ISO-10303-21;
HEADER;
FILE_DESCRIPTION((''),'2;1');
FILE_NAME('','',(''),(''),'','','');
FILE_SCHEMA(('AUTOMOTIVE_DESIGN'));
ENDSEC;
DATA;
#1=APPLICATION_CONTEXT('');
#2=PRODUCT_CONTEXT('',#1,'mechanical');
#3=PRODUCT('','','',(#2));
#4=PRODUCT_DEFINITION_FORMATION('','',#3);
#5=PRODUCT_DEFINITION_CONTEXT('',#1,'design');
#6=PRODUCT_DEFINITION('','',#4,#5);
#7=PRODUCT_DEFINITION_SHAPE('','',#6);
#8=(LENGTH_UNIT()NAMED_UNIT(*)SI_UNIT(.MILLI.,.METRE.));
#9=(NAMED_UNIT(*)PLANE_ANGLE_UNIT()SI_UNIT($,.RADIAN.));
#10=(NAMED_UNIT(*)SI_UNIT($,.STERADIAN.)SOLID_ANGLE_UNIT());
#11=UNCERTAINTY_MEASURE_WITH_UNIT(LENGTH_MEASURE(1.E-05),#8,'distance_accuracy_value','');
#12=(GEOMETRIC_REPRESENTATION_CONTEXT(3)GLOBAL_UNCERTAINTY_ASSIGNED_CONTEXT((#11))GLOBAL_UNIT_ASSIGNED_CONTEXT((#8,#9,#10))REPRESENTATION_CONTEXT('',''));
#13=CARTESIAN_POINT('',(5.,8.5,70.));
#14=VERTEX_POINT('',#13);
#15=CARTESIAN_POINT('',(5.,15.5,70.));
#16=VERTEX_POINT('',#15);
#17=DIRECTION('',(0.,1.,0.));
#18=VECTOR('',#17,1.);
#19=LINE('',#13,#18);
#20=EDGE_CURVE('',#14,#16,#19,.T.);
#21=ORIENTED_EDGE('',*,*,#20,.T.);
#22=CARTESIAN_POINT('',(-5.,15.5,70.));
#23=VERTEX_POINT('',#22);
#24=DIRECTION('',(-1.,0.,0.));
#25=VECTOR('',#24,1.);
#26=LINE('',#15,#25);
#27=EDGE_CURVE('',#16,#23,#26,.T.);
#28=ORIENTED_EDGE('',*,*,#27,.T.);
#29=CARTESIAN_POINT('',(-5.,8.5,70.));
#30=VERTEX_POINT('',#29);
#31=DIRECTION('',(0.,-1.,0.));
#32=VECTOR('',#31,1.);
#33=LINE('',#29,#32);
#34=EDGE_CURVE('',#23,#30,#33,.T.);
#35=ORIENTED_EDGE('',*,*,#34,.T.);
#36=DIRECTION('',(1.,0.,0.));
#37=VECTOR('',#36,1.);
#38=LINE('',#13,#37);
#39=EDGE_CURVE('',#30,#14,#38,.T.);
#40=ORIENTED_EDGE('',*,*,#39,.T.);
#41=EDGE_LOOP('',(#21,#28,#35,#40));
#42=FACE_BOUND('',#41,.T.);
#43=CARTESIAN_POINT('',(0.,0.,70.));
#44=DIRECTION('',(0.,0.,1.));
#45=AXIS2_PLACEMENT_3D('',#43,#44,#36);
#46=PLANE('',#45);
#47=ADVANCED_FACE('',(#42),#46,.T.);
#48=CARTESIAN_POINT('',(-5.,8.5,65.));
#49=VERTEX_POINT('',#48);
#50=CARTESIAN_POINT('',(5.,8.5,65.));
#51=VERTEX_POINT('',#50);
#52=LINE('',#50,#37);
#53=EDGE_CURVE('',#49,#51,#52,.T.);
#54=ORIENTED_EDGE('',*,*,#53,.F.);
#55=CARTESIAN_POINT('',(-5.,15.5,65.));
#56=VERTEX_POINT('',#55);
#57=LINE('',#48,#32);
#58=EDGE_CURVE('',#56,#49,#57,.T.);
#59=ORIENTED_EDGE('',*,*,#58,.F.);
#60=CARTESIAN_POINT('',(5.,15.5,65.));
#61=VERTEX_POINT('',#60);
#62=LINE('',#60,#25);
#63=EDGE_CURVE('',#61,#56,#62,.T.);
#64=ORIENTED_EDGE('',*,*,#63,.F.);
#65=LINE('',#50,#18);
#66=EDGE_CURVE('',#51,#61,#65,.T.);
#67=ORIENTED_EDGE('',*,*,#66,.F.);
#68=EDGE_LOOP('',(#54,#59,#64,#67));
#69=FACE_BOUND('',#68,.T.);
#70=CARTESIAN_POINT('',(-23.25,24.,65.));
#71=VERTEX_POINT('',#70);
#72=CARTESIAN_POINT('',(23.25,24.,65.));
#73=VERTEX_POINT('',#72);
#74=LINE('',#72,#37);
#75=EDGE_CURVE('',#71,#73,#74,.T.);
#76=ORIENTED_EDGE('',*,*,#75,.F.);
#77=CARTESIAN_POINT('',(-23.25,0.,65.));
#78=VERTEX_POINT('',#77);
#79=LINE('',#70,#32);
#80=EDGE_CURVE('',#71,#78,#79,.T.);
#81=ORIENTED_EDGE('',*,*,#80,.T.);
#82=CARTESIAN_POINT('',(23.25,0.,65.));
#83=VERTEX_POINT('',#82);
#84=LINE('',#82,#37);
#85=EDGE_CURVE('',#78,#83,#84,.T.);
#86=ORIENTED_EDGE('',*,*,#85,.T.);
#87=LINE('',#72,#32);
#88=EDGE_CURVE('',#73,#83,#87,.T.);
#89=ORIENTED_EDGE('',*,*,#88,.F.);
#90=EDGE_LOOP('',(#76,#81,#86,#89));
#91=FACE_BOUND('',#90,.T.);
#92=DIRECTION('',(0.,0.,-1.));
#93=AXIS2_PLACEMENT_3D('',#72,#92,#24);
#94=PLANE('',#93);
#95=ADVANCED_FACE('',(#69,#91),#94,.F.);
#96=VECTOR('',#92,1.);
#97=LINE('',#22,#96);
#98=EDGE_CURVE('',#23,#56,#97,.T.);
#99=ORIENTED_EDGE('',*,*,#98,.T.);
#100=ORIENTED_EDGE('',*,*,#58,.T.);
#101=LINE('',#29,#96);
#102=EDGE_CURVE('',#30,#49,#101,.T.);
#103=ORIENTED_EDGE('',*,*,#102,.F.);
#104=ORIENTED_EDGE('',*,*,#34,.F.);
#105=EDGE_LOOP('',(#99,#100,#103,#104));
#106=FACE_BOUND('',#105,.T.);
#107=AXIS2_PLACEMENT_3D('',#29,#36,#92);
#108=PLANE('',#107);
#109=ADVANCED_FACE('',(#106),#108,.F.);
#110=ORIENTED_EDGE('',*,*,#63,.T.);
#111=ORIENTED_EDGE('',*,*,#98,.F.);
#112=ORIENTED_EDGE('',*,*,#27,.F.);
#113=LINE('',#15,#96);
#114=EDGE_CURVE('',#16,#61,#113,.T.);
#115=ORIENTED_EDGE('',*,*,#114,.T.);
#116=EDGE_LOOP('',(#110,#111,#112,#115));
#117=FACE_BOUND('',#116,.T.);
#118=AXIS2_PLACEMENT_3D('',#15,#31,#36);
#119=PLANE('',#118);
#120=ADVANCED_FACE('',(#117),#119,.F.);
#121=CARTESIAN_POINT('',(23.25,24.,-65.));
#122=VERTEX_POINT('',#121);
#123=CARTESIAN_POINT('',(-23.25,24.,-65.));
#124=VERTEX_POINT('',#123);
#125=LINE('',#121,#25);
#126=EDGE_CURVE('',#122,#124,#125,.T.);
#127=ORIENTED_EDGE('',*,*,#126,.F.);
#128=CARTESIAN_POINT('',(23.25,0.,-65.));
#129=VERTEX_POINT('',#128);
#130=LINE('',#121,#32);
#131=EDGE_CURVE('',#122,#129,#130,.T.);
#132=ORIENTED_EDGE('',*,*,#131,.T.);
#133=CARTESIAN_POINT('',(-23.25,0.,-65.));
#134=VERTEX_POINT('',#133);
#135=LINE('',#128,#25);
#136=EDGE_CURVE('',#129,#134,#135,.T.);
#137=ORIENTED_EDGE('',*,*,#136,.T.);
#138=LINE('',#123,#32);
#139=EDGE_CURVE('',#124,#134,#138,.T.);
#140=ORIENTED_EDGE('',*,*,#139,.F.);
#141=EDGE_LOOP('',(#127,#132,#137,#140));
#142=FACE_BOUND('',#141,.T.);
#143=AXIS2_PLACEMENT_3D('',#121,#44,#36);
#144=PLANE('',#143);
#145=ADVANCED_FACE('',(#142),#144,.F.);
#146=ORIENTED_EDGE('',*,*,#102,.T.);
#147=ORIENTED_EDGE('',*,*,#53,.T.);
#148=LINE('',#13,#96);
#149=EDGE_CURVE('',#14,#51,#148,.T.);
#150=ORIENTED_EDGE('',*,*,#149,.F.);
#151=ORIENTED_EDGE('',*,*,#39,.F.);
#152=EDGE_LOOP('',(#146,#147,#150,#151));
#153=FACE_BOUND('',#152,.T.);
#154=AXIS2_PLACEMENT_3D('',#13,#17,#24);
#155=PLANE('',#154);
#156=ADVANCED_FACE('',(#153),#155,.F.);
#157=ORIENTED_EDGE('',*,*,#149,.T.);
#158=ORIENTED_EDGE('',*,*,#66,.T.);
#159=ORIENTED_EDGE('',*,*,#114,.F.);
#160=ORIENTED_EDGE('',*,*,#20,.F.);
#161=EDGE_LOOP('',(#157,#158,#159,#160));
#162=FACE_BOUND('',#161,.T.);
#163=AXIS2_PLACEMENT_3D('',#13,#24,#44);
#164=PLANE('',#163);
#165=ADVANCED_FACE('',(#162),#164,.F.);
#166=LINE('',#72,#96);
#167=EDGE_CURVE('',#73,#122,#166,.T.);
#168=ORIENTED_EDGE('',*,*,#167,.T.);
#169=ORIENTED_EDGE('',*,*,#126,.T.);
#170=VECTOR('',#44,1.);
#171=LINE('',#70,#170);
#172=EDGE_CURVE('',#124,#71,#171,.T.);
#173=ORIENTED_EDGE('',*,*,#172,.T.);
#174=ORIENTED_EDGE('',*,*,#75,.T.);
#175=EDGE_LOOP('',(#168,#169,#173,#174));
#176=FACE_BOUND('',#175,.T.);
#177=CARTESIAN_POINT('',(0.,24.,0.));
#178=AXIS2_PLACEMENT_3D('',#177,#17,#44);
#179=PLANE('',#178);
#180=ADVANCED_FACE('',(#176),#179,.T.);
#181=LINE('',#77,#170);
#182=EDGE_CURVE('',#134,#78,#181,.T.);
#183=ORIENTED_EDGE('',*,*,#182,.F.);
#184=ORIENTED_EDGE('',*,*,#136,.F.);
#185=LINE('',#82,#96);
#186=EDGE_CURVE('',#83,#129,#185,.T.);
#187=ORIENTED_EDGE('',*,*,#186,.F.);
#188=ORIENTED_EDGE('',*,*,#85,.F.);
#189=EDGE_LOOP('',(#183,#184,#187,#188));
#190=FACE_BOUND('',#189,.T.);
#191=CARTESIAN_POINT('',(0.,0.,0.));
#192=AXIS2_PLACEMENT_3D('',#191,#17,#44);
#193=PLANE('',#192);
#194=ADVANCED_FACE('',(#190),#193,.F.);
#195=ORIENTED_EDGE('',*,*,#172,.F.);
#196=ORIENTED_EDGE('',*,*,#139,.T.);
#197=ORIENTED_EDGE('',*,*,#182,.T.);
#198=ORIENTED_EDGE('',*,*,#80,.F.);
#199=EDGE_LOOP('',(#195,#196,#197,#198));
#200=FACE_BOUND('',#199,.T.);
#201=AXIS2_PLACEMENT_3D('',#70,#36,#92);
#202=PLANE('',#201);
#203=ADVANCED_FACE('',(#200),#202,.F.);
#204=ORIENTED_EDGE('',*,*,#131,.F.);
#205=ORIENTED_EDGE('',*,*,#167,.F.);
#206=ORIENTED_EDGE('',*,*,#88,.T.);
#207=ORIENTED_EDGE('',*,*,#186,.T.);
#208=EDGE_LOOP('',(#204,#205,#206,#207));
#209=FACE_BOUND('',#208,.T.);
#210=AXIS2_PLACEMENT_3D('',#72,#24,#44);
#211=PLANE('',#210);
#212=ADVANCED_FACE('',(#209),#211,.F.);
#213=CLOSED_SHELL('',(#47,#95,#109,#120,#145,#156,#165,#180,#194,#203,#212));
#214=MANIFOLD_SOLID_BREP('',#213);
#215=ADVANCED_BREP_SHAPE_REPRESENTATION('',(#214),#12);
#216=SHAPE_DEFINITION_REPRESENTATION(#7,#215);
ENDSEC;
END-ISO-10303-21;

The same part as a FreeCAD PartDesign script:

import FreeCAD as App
import Part
import Sketcher

V = App.Vector


def add_polygon(sketch, points):
    """Adds a closed chain of lines whose ends are joined by coincident constraints."""
    first, n = sketch.GeometryCount, len(points)
    for a, b in zip(points, points[1:] + points[:1]):
        sketch.addGeometry(Part.LineSegment(App.Vector(*a, 0), App.Vector(*b, 0)), False)
    for i in range(n):
        sketch.addConstraint(Sketcher.Constraint("Coincident", first + i, 2, first + (i + 1) % n, 1))

doc = App.newDocument("Part")
params = doc.addObject("Spreadsheet::Sheet", "Params")
for row, (alias, value) in enumerate([
    ("sketch1_height", "130 mm"),
    ("sketch1_width", "46.5 mm"),
    ("pad1_length", "24 mm"),
    ("sketch2_width", "10 mm"),
    ("sketch2_height", "7 mm"),
    ("pad2_length", "5 mm"),
], start=1):
    params.set(f"A{row}", alias)
    params.set(f"B{row}", "=" + value)
    params.setAlias(f"B{row}", alias)

body = doc.addObject("PartDesign::Body", "Body")

# Sketch on XZ plane
sketch1 = doc.addObject("Sketcher::SketchObject", "Sketch")
body.addObject(sketch1)
sketch1.AttachmentSupport = (doc.XZ_Plane, [""])
sketch1.MapMode = "FlatFace"
add_polygon(sketch1, [(-23.25, -65), (-23.25, 65), (23.25, 65), (23.25, -65)])  # lines 0-3
sketch1.addConstraint(Sketcher.Constraint("Vertical", 0))
sketch1.addConstraint(Sketcher.Constraint("Horizontal", 1))
sketch1.addConstraint(Sketcher.Constraint("Vertical", 2))
sketch1.addConstraint(Sketcher.Constraint("Horizontal", 3))
sketch1.addConstraint(Sketcher.Constraint("Symmetric", 0, 2, 2, 2, -1, 1))
sketch1.addConstraint(Sketcher.Constraint("DistanceY", 0, 1, 0, 2, 130.0))
sketch1.addConstraint(Sketcher.Constraint("DistanceX", 1, 1, 1, 2, 46.5))
sketch1.setExpression("Constraints[9]", "Params.sketch1_height")
sketch1.setExpression("Constraints[10]", "Params.sketch1_width")
pad1 = doc.addObject("PartDesign::Pad", "Pad")
body.addObject(pad1)
pad1.Profile = sketch1
pad1.setExpression("Length", "Params.pad1_length")
pad1.Reversed = True

# Sketch on XY plane
sketch2 = doc.addObject("Sketcher::SketchObject", "Sketch001")
body.addObject(sketch2)
sketch2.AttachmentSupport = (doc.XY_Plane, [""])
sketch2.MapMode = "FlatFace"
sketch2.AttachmentOffset = App.Placement(V(0, 0, 65), App.Rotation())
add_polygon(sketch2, [(-5, 15.5), (-5, 8.5), (5, 8.5), (5, 15.5)])  # lines 0-3
sketch2.addConstraint(Sketcher.Constraint("Vertical", 0))
sketch2.addConstraint(Sketcher.Constraint("Horizontal", 1))
sketch2.addConstraint(Sketcher.Constraint("Vertical", 2))
sketch2.addConstraint(Sketcher.Constraint("Horizontal", 3))
sketch2.addConstraint(Sketcher.Constraint("DistanceX", 1, 1, 1, 2, 10.0))
sketch2.addConstraint(Sketcher.Constraint("DistanceY", 0, 2, 0, 1, 7.0))
sketch2.addConstraint(Sketcher.Constraint("DistanceX", 0, 2, -1, 1, 5.0))
sketch2.addConstraint(Sketcher.Constraint("DistanceY", -1, 1, 0, 2, 8.5))
sketch2.setExpression("Constraints[8]", "Params.sketch2_width")
sketch2.setExpression("Constraints[9]", "Params.sketch2_height")
pad2 = doc.addObject("PartDesign::Pad", "Pad001")
body.addObject(pad2)
pad2.Profile = sketch2
pad2.setExpression("Length", "Params.pad2_length")

doc.recompute()
